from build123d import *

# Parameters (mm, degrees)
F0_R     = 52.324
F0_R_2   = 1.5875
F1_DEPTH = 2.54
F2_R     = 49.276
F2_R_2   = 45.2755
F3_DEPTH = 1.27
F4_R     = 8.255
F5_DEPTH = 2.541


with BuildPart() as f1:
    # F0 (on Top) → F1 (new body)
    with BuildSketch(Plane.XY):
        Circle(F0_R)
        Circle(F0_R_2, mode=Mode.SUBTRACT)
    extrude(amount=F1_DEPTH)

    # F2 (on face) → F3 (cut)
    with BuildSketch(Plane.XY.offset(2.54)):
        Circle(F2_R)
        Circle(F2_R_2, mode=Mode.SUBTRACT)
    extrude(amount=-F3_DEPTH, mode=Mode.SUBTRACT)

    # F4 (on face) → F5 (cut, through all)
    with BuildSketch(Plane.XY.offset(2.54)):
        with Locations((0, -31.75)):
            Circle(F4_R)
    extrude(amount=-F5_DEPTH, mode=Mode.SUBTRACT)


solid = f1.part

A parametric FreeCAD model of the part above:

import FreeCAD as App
import Part
import Sketcher

V = App.Vector
Q = App.Units.Quantity

doc = App.newDocument("Part")
body = doc.addObject("PartDesign::Body", "Body")

sketch1 = doc.addObject("Sketcher::SketchObject", "Sketch")
body.addObject(sketch1)
sketch1.AttachmentSupport = (doc.XY_Plane, [""])
sketch1.MapMode = "FlatFace"
sketch1.addGeometry([
    Part.Circle(V(0, 0, 0), V(0, 0, 1), 52.3),
    Part.Circle(V(0, 0, 0), V(0, 0, 1), 1.6),
], False)
sketch1.addConstraint([
    Sketcher.Constraint("Coincident", 0, 3, -1, 1),
    Sketcher.Constraint("Coincident", 1, 3, -1, 1),
    Sketcher.Constraint("Diameter", 0, Q("4.12 in")),
    Sketcher.Constraint("Diameter", 1, Q("0.125 in")),
])
pad1 = doc.addObject("PartDesign::Pad", "Pad")
body.addObject(pad1)
pad1.Profile = sketch1
pad1.Length = Q("0.1 in")

sketch2 = doc.addObject("Sketcher::SketchObject", "Sketch001")
body.addObject(sketch2)
sketch2.AttachmentSupport = (doc.XY_Plane, [""])
sketch2.MapMode = "FlatFace"
sketch2.AttachmentOffset = App.Placement(V(0, 0, 0.1 * 25.4), App.Rotation())
sketch2.addGeometry([
    Part.Circle(V(0, 0, 0), V(0, 0, 1), 49),
    Part.Circle(V(0, 0, 0), V(0, 0, 1), 45),
], False)
sketch2.addConstraint([
    Sketcher.Constraint("Coincident", 0, 3, -1, 1),
    Sketcher.Constraint("Coincident", 1, 3, -1, 1),
    Sketcher.Constraint("Diameter", 0, Q("3.88 in")),
    Sketcher.Constraint("Diameter", 1, Q("3.565 in")),
])
pocket1 = doc.addObject("PartDesign::Pocket", "Pocket")
body.addObject(pocket1)
pocket1.Profile = sketch2
pocket1.Length = Q("0.05 in")

sketch3 = doc.addObject("Sketcher::SketchObject", "Sketch002")
body.addObject(sketch3)
sketch3.AttachmentSupport = (doc.XY_Plane, [""])
sketch3.MapMode = "FlatFace"
sketch3.AttachmentOffset = App.Placement(V(0, 0, 0.1 * 25.4), App.Rotation())
sketch3.addGeometry(Part.Circle(V(0, -32, 0), V(0, 0, 1), 8), False)
sketch3.addConstraint([
    Sketcher.Constraint("PointOnObject", 0, 3, -2),
    Sketcher.Constraint("Diameter", 0, Q("0.65 in")),
    Sketcher.Constraint("DistanceY", 0, 3, -1, 1, Q("1.25 in")),
])
pocket2 = doc.addObject("PartDesign::Pocket", "Pocket001")
body.addObject(pocket2)
pocket2.Profile = sketch3
pocket2.Type = "ThroughAll"

doc.recompute()
